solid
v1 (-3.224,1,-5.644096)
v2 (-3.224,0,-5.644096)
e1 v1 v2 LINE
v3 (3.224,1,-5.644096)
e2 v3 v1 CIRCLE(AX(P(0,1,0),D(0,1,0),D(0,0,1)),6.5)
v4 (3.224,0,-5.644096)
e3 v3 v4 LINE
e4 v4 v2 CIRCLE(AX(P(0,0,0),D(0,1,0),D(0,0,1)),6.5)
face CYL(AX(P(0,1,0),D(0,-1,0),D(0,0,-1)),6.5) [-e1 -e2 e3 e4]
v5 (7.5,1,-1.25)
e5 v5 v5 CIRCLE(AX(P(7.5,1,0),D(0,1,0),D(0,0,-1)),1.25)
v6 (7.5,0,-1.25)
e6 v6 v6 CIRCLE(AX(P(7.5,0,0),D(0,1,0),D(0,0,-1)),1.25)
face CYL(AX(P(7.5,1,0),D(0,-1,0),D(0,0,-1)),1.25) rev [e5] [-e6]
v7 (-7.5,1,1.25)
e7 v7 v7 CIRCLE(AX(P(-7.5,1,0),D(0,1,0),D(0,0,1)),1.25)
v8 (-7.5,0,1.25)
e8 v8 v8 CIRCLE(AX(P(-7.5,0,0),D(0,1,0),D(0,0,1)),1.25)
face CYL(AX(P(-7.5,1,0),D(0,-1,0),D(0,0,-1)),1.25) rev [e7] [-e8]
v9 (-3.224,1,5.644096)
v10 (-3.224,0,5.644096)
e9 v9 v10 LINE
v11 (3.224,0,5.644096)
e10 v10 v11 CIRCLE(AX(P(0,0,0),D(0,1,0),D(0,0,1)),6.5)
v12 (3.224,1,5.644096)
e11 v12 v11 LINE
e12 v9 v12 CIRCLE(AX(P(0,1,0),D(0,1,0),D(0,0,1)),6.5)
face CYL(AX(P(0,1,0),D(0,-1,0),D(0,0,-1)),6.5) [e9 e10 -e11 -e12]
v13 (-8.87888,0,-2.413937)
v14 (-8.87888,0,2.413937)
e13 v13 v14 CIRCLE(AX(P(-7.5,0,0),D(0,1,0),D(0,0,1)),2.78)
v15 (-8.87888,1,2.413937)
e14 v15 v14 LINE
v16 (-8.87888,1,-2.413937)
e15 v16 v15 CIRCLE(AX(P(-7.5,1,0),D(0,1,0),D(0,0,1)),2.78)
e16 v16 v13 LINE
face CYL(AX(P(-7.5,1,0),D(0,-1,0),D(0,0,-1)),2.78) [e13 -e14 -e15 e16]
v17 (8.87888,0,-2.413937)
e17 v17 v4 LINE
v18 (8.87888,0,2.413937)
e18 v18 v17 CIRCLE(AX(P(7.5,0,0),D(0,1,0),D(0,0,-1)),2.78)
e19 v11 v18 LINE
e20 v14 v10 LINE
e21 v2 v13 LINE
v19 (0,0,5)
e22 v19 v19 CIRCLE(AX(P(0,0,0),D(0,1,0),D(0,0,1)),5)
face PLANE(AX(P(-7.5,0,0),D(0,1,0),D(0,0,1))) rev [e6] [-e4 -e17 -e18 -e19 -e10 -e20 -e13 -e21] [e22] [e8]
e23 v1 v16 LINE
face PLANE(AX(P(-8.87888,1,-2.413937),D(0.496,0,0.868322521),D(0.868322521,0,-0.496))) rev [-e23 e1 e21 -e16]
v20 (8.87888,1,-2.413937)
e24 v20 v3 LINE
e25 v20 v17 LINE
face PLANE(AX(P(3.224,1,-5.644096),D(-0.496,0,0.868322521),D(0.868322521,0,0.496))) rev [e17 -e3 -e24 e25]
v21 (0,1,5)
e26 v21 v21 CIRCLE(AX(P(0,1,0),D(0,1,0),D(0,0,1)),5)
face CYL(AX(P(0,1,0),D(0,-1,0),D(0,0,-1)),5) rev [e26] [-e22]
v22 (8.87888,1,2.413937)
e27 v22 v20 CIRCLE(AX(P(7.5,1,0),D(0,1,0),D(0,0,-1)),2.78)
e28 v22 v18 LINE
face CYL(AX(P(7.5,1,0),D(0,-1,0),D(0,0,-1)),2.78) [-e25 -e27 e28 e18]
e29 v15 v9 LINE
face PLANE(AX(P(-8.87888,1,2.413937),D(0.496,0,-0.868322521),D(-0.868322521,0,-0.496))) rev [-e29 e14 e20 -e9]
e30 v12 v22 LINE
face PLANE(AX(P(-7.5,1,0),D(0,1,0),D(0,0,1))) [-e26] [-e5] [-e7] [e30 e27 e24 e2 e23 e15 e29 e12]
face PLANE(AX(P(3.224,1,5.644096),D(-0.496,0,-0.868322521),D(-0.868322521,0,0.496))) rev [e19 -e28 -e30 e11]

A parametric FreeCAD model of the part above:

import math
import FreeCAD as App
import Part
import Sketcher

V = App.Vector
Q = App.Units.Quantity

doc = App.newDocument("Part")
body = doc.addObject("PartDesign::Body", "Body")

# Sketch on XZ plane
sketch1 = body.newObject("Sketcher::SketchObject", "Sketch")
sketch1.AttachmentSupport = (doc.getObject("XZ_Plane"), [""])
sketch1.MapMode = "FlatFace"
sketch1.addGeometry(Part.LineSegment(V(-3.2, -5.6, 0), V(-8.9, -2.4, 0)), False)
sketch1.addGeometry(Part.ArcOfCircle(Part.Circle(V(-7.5, 0, 0), V(0, 0, 1), 2.8), math.radians(120), math.radians(240)), False)
sketch1.addGeometry(Part.LineSegment(V(-8.9, 2.4, 0), V(-3.2, 5.6, 0)), False)
sketch1.addGeometry(Part.ArcOfCircle(Part.Circle(V(0, 0, 0), V(0, 0, 1), 6.5), math.radians(60), math.radians(120)), False)
sketch1.addGeometry(Part.LineSegment(V(3.2, 5.6, 0), V(8.9, 2.4, 0)), False)
sketch1.addGeometry(Part.ArcOfCircle(Part.Circle(V(7.5, 0, 0), V(0, 0, 1), 2.8), math.radians(-60), math.radians(60)), False)
sketch1.addGeometry(Part.LineSegment(V(8.9, -2.4, 0), V(3.2, -5.6, 0)), False)
sketch1.addGeometry(Part.ArcOfCircle(Part.Circle(V(0, 0, 0), V(0, 0, 1), 6.5), math.radians(-120), math.radians(-60)), False)
sketch1.addGeometry(Part.Circle(V(7.5, 0, 0), V(0, 0, 1), 1.2), False)
sketch1.addGeometry(Part.Circle(V(0, 0, 0), V(0, 0, 1), 5), False)
sketch1.addGeometry(Part.Circle(V(-7.5, 0, 0), V(0, 0, 1), 1.2), False)
sketch1.addConstraint(Sketcher.Constraint("Tangent", 0, 2, 1, 2))
sketch1.addConstraint(Sketcher.Constraint("Tangent", 1, 1, 2, 1))
sketch1.addConstraint(Sketcher.Constraint("Tangent", 2, 2, 3, 2))
sketch1.addConstraint(Sketcher.Constraint("Tangent", 3, 1, 4, 1))
sketch1.addConstraint(Sketcher.Constraint("Tangent", 4, 2, 5, 2))
sketch1.addConstraint(Sketcher.Constraint("Tangent", 5, 1, 6, 1))
sketch1.addConstraint(Sketcher.Constraint("Tangent", 6, 2, 7, 2))
sketch1.addConstraint(Sketcher.Constraint("Tangent", 7, 1, 0, 1))
sketch1.addConstraint(Sketcher.Constraint("Coincident", 3, 3, -1, 1))
sketch1.addConstraint(Sketcher.Constraint("Coincident", 7, 3, -1, 1))
sketch1.addConstraint(Sketcher.Constraint("Coincident", 9, 3, -1, 1))
sketch1.addConstraint(Sketcher.Constraint("Coincident", 8, 3, 5, 3))
sketch1.addConstraint(Sketcher.Constraint("Coincident", 10, 3, 1, 3))
sketch1.addConstraint(Sketcher.Constraint("Equal", 1, 5))
sketch1.addConstraint(Sketcher.Constraint("Equal", 3, 7))
sketch1.addConstraint(Sketcher.Constraint("Equal", 8, 10))
sketch1.addConstraint(Sketcher.Constraint("Symmetric", 1, 3, 5, 3, -1, 1))
sketch1.addConstraint(Sketcher.Constraint("PointOnObject", 1, 3, -1))
sketch1.addConstraint(Sketcher.Constraint("Diameter", 9, Q("10 mm")))
sketch1.addConstraint(Sketcher.Constraint("Diameter", 8, Q("2.5 mm")))
sketch1.addConstraint(Sketcher.Constraint("Radius", 3, Q("6.5 mm")))
sketch1.addConstraint(Sketcher.Constraint("Radius", 1, Q("2.78 mm")))
sketch1.addConstraint(Sketcher.Constraint("DistanceX", 1, 3, 5, 3, Q("15 mm")))
pad1 = body.newObject("PartDesign::Pad", "Pad")
pad1.Profile = sketch1
pad1.Length = 1
pad1.Reversed = True

doc.recompute()
